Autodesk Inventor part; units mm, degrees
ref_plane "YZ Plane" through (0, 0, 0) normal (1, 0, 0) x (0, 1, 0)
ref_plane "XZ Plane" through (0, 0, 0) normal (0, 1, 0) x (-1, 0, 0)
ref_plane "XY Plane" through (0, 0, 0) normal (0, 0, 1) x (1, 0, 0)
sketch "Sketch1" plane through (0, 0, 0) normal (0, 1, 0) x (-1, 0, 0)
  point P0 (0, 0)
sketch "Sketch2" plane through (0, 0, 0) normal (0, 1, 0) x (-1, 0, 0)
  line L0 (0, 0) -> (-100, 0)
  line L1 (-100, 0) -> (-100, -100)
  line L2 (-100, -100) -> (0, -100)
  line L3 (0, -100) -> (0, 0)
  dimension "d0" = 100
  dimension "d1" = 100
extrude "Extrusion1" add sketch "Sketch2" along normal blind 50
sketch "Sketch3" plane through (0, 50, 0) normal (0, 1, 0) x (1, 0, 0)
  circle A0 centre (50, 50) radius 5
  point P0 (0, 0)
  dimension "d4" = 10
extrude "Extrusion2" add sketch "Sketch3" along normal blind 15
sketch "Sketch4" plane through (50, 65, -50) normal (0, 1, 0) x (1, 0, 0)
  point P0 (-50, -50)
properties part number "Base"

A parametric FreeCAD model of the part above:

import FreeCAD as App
import Part
import Sketcher

V = App.Vector
Q = App.Units.Quantity

doc = App.newDocument("Part")
body = doc.addObject("PartDesign::Body", "Body")

sketch1 = body.newObject("Sketcher::SketchObject", "Sketch")
sketch1.AttachmentSupport = (doc.getObject("XZ_Plane"), [""])
sketch1.MapMode = "FlatFace"
sketch1.addGeometry([
    Part.LineSegment(V(0, -100, 0), V(0, 0, 0)),
    Part.LineSegment(V(0, 0, 0), V(100, 0, 0)),
    Part.LineSegment(V(100, 0, 0), V(100, -100, 0)),
    Part.LineSegment(V(100, -100, 0), V(0, -100, 0)),
], False)
sketch1.addConstraint([
    Sketcher.Constraint("Coincident", 0, 2, 1, 1),
    Sketcher.Constraint("Coincident", 1, 2, 2, 1),
    Sketcher.Constraint("Coincident", 2, 2, 3, 1),
    Sketcher.Constraint("Coincident", 3, 2, 0, 1),
    Sketcher.Constraint("Vertical", 0),
    Sketcher.Constraint("Horizontal", 1),
    Sketcher.Constraint("Vertical", 2),
    Sketcher.Constraint("Horizontal", 3),
    Sketcher.Constraint("Coincident", 0, 2, -1, 1),
    Sketcher.Constraint("Equal", 3, 0),
    Sketcher.Constraint("DistanceX", 1, 1, 1, 2, Q("100 mm")),
])
pad1 = body.newObject("PartDesign::Pad", "Pad")
pad1.Profile = sketch1
pad1.Length = 50
pad1.Reversed = True

sketch2 = body.newObject("Sketcher::SketchObject", "Sketch001")
sketch2.AttachmentSupport = (doc.getObject("XZ_Plane"), [""])
sketch2.MapMode = "FlatFace"
sketch2.AttachmentOffset = App.Placement(V(0, 0, -50), App.Rotation())
sketch2.addGeometry(Part.Circle(V(50, -50, 0), V(0, 0, 1), 5), False)
sketch2.addConstraint([
    Sketcher.Constraint("Diameter", 0, Q("10 mm")),
    Sketcher.Constraint("DistanceX", -1, 1, 0, 3, Q("50 mm")),
    Sketcher.Constraint("DistanceY", 0, 3, -1, 1, Q("50 mm")),
])
pad2 = body.newObject("PartDesign::Pad", "Pad001")
pad2.Profile = sketch2
pad2.Length = 15
pad2.Reversed = True

doc.recompute()
